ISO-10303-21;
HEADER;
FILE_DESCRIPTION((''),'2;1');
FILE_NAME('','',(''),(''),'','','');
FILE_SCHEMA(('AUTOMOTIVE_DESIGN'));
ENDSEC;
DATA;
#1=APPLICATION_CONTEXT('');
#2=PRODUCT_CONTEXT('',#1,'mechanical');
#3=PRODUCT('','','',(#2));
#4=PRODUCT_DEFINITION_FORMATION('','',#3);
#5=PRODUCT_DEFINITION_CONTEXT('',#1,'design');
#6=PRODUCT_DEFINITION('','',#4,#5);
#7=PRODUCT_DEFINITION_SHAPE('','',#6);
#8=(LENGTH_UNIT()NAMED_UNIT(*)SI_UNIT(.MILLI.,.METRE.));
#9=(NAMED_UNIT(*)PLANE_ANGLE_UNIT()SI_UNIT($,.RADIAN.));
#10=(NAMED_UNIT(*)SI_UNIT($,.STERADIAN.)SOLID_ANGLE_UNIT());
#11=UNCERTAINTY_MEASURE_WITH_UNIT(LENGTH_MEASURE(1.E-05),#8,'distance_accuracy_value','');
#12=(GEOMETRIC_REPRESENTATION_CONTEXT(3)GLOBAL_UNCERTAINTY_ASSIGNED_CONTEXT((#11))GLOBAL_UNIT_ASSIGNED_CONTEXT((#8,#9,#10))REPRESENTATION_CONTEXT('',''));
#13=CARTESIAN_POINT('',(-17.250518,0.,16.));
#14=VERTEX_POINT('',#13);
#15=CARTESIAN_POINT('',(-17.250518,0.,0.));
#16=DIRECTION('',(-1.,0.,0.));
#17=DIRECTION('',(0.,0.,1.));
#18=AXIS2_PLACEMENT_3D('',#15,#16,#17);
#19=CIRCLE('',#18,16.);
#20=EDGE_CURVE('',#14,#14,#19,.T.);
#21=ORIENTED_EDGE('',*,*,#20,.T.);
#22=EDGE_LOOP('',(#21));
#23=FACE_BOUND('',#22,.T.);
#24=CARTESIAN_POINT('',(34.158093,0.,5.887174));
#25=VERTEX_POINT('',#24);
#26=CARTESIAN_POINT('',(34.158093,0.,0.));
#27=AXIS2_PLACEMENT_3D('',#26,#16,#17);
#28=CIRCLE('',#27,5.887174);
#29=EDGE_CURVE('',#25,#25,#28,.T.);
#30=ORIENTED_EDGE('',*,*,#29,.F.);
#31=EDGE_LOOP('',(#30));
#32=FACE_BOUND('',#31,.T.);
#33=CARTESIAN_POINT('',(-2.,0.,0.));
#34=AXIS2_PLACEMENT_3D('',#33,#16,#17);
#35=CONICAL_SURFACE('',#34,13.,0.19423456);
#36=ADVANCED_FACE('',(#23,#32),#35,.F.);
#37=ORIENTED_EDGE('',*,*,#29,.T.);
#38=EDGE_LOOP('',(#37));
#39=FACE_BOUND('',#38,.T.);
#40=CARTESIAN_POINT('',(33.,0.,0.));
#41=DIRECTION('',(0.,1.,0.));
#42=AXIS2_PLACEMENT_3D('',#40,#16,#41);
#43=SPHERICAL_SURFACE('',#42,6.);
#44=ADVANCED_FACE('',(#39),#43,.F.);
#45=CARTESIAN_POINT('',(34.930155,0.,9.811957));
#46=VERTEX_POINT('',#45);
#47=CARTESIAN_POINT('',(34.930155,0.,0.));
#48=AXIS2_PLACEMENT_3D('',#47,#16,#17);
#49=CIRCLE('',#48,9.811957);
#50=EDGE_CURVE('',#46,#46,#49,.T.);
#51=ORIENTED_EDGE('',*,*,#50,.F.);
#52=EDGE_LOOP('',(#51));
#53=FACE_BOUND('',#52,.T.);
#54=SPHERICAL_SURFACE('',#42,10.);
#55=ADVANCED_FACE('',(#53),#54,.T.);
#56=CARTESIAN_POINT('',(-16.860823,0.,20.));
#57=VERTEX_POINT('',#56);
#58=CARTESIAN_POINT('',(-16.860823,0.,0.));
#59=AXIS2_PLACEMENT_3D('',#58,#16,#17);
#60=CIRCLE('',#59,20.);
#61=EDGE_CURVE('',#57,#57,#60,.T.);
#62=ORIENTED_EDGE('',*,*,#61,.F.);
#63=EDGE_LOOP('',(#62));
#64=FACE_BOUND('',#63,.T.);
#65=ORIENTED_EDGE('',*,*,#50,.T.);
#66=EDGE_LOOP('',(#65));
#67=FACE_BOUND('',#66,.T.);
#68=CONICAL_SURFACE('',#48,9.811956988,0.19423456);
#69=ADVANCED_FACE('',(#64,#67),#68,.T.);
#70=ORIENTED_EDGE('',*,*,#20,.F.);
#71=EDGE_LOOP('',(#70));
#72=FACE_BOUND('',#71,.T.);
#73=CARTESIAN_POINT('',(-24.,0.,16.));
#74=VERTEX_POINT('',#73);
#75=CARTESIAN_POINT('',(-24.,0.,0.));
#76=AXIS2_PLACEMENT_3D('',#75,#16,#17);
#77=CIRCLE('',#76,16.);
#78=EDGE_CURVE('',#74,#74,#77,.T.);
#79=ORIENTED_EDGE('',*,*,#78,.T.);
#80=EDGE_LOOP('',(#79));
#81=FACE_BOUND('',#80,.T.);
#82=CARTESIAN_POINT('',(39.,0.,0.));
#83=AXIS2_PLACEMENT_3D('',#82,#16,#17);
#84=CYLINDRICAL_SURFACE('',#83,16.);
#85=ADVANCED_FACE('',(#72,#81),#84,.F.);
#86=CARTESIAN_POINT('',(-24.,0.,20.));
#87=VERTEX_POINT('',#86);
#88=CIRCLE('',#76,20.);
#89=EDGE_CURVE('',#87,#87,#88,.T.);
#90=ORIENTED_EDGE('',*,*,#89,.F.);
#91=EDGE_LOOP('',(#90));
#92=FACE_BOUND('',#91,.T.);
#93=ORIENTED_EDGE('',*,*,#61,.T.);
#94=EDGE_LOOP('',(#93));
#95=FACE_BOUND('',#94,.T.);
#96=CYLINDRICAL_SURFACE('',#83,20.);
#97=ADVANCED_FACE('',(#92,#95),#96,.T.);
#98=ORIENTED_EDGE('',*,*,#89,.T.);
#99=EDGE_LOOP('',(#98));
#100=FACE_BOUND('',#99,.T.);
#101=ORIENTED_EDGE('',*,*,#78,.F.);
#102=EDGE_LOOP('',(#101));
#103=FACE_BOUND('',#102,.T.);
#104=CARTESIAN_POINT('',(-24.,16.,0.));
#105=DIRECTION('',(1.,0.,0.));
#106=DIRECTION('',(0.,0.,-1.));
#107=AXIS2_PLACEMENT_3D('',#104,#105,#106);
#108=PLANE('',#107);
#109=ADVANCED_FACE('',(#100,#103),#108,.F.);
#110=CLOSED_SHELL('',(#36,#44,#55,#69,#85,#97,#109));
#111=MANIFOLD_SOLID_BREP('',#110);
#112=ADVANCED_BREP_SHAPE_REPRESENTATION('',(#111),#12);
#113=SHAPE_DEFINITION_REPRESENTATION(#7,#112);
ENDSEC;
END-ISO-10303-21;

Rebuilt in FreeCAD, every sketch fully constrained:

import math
import FreeCAD as App
import Part
import Sketcher
Q = App.Units.Quantity

doc = App.newDocument("Part")
params = doc.addObject("Spreadsheet::Sheet", "Params")
for row, (alias, value) in enumerate([
    ("sketch1_radius", "6 mm"),
    ("sketch1_radius2", "10 mm"),
    ("revolution_angle", "360 deg"),
], start=1):
    params.set(f"A{row}", alias)
    params.set(f"B{row}", "=" + value)
    params.setAlias(f"B{row}", alias)

body = doc.addObject("PartDesign::Body", "Body")

sketch1 = body.newObject("Sketcher::SketchObject", "Sketch")
sketch1.AttachmentSupport = (doc.getObject("XY_Plane"), [""])
sketch1.MapMode = "FlatFace"
sketch1.addGeometry(Part.LineSegment(App.Vector(-2, 13, 0), App.Vector(34.158093, 5.887174, 0)), False)
sketch1.addGeometry(Part.ArcOfCircle(Part.Circle(App.Vector(33, 0, 0), App.Vector(0, 0, 1), 6), math.radians(0), math.radians(78.871179)), False)
sketch1.addGeometry(Part.LineSegment(App.Vector(39, 0, 0), App.Vector(43, 0, 0)), False)
sketch1.addGeometry(Part.ArcOfCircle(Part.Circle(App.Vector(33, 0, 0), App.Vector(0, 0, 1), 10), math.radians(0), math.radians(78.871179)), False)
sketch1.addGeometry(Part.LineSegment(App.Vector(34.930155, 9.811957, 0), App.Vector(-16.860823, 20, 0)), False)
sketch1.addGeometry(Part.LineSegment(App.Vector(-16.860823, 20, 0), App.Vector(-24, 20, 0)), False)
sketch1.addGeometry(Part.LineSegment(App.Vector(-24, 20, 0), App.Vector(-24, 16, 0)), False)
sketch1.addGeometry(Part.LineSegment(App.Vector(-24, 16, 0), App.Vector(-17.250518, 16, 0)), False)
sketch1.addGeometry(Part.LineSegment(App.Vector(-17.250518, 16, 0), App.Vector(-2, 13, 0)), False)
sketch1.addConstraint(Sketcher.Constraint("Tangent", 0, 2, 1, 2))
sketch1.addConstraint(Sketcher.Constraint("Coincident", 1, 1, 2, 1))
sketch1.addConstraint(Sketcher.Constraint("Coincident", 2, 2, 3, 1))
sketch1.addConstraint(Sketcher.Constraint("Tangent", 3, 2, 4, 1))
sketch1.addConstraint(Sketcher.Constraint("Coincident", 4, 2, 5, 1))
sketch1.addConstraint(Sketcher.Constraint("Coincident", 5, 2, 6, 1))
sketch1.addConstraint(Sketcher.Constraint("Coincident", 6, 2, 7, 1))
sketch1.addConstraint(Sketcher.Constraint("Coincident", 7, 2, 8, 1))
sketch1.addConstraint(Sketcher.Constraint("Coincident", 8, 2, 0, 1))
sketch1.addConstraint(Sketcher.Constraint("Horizontal", 2))
sketch1.addConstraint(Sketcher.Constraint("Horizontal", 5))
sketch1.addConstraint(Sketcher.Constraint("Vertical", 6))
sketch1.addConstraint(Sketcher.Constraint("Horizontal", 7))
sketch1.addConstraint(Sketcher.Constraint("Coincident", 3, 3, 1, 3))
sketch1.addConstraint(Sketcher.Constraint("PointOnObject", 1, 3, -1))
sketch1.addConstraint(Sketcher.Constraint("PointOnObject", 1, 1, -1))
sketch1.addConstraint(Sketcher.Constraint("Parallel", 0, 4))
sketch1.addConstraint(Sketcher.Constraint("Parallel", 4, 8))
sketch1.addConstraint(Sketcher.Constraint("Equal", 2, 6))
sketch1.addConstraint(Sketcher.Constraint("Radius", 1, Q("6 mm")))
sketch1.addConstraint(Sketcher.Constraint("Radius", 3, Q("10 mm")))
sketch1.addConstraint(Sketcher.Constraint("DistanceX", -1, 1, 1, 3, Q("33 mm")))
sketch1.addConstraint(Sketcher.Constraint("DistanceY", -1, 1, 4, 2, Q("20 mm")))
sketch1.addConstraint(Sketcher.Constraint("DistanceX", 5, 2, -1, 1, Q("24 mm")))
sketch1.addConstraint(Sketcher.Constraint("DistanceX", 8, 2, -1, 1, Q("2 mm")))
sketch1.addConstraint(Sketcher.Constraint("DistanceY", -1, 1, 8, 2, Q("13 mm")))
sketch1.setExpression("Constraints[19]", "Params.sketch1_radius")
sketch1.setExpression("Constraints[20]", "Params.sketch1_radius2")
revolution = body.newObject("PartDesign::Revolution", "Revolution")
revolution.Profile = sketch1
revolution.ReferenceAxis = (sketch1, ["H_Axis"])
revolution.setExpression("Angle", "Params.revolution_angle")

doc.recompute()
